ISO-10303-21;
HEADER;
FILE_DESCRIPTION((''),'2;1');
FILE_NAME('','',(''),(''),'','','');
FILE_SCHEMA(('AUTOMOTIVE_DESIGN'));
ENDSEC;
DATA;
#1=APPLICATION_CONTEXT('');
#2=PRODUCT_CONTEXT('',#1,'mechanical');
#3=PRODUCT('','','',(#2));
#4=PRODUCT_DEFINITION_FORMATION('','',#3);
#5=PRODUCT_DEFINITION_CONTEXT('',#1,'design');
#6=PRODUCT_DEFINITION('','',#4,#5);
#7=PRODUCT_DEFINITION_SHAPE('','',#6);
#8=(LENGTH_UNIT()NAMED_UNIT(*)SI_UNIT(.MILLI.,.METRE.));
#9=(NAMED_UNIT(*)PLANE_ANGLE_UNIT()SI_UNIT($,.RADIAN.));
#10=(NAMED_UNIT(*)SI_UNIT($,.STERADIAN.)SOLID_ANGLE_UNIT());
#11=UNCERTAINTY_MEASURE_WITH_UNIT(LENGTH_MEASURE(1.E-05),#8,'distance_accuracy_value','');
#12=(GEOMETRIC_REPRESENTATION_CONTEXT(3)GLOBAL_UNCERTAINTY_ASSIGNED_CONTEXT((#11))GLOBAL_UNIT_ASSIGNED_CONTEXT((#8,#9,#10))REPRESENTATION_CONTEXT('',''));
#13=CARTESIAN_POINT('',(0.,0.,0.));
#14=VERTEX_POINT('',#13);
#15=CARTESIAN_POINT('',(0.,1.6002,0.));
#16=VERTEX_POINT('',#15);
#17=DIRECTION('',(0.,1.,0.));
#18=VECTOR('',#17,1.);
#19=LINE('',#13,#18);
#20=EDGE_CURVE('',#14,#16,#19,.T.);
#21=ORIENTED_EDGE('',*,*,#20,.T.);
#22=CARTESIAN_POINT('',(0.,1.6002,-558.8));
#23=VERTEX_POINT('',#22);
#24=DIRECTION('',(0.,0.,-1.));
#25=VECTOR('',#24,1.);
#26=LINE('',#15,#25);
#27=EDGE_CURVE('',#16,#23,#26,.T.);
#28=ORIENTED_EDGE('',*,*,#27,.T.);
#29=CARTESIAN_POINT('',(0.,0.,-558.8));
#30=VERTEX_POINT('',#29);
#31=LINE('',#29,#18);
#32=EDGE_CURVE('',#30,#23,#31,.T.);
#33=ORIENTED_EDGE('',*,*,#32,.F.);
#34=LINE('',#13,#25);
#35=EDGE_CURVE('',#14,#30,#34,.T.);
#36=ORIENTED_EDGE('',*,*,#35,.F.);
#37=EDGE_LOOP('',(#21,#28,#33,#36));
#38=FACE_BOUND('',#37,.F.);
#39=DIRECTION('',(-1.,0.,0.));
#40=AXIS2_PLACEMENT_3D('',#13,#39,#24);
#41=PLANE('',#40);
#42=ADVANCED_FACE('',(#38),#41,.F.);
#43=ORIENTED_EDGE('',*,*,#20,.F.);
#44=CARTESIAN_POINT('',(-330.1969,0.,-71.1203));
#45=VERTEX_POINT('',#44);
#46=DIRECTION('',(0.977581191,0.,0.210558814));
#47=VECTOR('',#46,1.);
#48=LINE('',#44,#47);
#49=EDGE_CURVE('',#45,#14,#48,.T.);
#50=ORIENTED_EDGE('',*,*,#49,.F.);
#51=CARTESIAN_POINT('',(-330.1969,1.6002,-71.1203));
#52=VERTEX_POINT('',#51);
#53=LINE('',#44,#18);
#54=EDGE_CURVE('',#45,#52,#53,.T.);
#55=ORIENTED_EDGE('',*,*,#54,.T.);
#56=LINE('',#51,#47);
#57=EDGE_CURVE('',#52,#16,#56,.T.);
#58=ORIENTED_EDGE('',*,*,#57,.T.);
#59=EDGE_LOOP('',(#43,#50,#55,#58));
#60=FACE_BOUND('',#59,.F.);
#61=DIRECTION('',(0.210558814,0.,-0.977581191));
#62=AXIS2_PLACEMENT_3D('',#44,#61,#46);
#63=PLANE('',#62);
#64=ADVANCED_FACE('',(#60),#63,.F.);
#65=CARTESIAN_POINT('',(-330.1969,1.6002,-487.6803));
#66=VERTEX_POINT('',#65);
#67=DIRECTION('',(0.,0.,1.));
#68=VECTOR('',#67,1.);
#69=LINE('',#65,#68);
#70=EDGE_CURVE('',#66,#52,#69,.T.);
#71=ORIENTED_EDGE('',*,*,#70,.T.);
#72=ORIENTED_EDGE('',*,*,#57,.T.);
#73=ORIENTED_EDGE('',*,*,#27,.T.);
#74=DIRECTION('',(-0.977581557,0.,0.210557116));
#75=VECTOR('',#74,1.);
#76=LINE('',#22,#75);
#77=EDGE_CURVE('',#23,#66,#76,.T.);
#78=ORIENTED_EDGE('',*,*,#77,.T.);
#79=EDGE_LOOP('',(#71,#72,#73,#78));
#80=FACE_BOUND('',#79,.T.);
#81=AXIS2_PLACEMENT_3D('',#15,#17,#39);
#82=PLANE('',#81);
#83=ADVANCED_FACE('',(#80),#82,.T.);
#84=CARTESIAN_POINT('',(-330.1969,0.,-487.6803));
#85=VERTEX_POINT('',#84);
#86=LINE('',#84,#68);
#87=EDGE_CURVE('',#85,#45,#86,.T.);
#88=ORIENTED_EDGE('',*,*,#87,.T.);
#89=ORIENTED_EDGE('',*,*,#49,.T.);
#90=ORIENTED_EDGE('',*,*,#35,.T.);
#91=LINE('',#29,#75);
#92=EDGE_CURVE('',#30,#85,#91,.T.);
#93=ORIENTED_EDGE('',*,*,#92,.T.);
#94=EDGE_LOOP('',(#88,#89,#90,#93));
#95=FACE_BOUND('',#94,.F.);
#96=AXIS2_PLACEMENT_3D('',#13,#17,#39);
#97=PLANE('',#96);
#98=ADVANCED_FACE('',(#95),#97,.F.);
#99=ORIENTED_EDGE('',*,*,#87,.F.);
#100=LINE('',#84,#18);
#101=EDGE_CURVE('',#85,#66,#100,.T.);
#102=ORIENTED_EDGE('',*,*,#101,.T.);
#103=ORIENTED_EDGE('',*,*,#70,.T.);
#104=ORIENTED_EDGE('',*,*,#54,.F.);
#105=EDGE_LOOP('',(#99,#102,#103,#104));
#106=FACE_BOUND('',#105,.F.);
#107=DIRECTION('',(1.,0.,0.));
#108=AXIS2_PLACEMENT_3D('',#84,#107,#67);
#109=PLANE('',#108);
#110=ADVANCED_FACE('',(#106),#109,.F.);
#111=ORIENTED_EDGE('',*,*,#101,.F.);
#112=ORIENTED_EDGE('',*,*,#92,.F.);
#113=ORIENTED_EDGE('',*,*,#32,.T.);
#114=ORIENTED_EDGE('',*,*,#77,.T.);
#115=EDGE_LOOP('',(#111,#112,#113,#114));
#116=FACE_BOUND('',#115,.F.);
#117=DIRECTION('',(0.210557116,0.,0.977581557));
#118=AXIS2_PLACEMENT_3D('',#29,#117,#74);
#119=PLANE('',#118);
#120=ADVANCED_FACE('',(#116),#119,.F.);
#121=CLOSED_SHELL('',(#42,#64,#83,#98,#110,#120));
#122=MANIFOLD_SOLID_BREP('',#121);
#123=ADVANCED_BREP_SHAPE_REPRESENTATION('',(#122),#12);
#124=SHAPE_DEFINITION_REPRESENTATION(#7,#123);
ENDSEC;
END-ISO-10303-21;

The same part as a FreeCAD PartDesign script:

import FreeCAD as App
import Part
import Sketcher

V = App.Vector
Q = App.Units.Quantity


def add_polygon(sketch, points):
    """Adds a closed chain of lines whose ends are joined by coincident constraints."""
    first, n = sketch.GeometryCount, len(points)
    for a, b in zip(points, points[1:] + points[:1]):
        sketch.addGeometry(Part.LineSegment(App.Vector(*a, 0), App.Vector(*b, 0)), False)
    for i in range(n):
        sketch.addConstraint(Sketcher.Constraint("Coincident", first + i, 2, first + (i + 1) % n, 1))

doc = App.newDocument("Part")
body = doc.addObject("PartDesign::Body", "Body")

# Sketch on XZ plane
sketch1 = doc.addObject("Sketcher::SketchObject", "Sketch")
body.addObject(sketch1)
sketch1.AttachmentSupport = (doc.XZ_Plane, [""])
sketch1.MapMode = "FlatFace"
add_polygon(sketch1, [(-330, -71), (0, 0), (0, -559), (-330, -488)])  # lines 0-3
sketch1.addConstraint([
    Sketcher.Constraint("Vertical", 1),
    Sketcher.Constraint("Vertical", 3),
    Sketcher.Constraint("Coincident", 0, 2, -1, 1),
    Sketcher.Constraint("Equal", 0, 2),
    Sketcher.Constraint("DistanceY", 1, 2, 1, 1, Q("22 in")),
    Sketcher.Constraint("DistanceY", 3, 1, 3, 2, Q("16.4 in")),
    Sketcher.Constraint("Distance", 0, Q("13.298 in")),
])
pad1 = doc.addObject("PartDesign::Pad", "Pad")
body.addObject(pad1)
pad1.Profile = sketch1
pad1.Length = Q("0.063 in")
pad1.Reversed = True

doc.recompute()
